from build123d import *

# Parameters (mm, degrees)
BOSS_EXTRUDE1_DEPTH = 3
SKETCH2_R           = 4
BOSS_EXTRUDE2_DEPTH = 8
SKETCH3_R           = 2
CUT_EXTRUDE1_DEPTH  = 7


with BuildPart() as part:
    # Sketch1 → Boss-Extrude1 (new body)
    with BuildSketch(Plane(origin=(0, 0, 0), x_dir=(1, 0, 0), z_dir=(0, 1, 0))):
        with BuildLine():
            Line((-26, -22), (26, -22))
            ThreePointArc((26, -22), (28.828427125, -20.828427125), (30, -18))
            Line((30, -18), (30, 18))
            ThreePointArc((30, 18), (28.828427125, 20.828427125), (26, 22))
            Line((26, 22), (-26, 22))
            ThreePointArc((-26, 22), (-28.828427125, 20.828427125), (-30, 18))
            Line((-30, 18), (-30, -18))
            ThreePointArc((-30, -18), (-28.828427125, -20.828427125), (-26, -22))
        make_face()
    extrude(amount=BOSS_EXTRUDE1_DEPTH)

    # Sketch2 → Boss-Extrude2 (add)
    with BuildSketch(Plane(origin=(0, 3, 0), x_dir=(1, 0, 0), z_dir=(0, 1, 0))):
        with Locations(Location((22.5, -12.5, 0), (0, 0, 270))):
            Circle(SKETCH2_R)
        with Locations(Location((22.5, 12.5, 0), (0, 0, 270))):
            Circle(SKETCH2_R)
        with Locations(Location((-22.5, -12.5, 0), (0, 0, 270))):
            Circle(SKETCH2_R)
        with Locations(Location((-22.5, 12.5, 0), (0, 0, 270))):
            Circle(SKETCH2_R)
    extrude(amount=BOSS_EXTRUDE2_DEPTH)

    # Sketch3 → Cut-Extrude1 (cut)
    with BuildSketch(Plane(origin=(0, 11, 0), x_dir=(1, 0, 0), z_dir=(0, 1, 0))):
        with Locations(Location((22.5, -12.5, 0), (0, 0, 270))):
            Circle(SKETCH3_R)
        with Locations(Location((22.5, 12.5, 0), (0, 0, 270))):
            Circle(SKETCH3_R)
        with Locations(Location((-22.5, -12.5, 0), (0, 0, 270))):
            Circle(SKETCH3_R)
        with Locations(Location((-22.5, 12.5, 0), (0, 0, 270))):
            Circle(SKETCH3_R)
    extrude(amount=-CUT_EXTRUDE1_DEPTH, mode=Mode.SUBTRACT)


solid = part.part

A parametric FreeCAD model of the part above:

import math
import FreeCAD as App
import Part
import Sketcher

V = App.Vector

doc = App.newDocument("Part")
body = doc.addObject("PartDesign::Body", "Body")

# Sketch on XZ plane
sketch1 = doc.addObject("Sketcher::SketchObject", "Sketch")
body.addObject(sketch1)
sketch1.AttachmentSupport = (doc.XZ_Plane, [""])
sketch1.MapMode = "FlatFace"
sketch1.addGeometry([
    Part.LineSegment(V(-26, 22, 0), V(26, 22, 0)),  # 0
    Part.ArcOfCircle(Part.Circle(V(26, 18, 0), V(0, 0, 1), 4), math.radians(0), math.radians(90)),  # 1
    Part.LineSegment(V(30, 18, 0), V(30, -18, 0)),  # 2
    Part.ArcOfCircle(Part.Circle(V(26, -18, 0), V(0, 0, 1), 4), math.radians(-90), math.radians(0)),  # 3
    Part.LineSegment(V(26, -22, 0), V(-26, -22, 0)),  # 4
    Part.ArcOfCircle(Part.Circle(V(-26, -18, 0), V(0, 0, 1), 4), math.radians(180), math.radians(270)),  # 5
    Part.LineSegment(V(-30, -18, 0), V(-30, 18, 0)),  # 6
    Part.ArcOfCircle(Part.Circle(V(-26, 18, 0), V(0, 0, 1), 4), math.radians(90), math.radians(180)),  # 7
], False)
sketch1.addConstraint([
    Sketcher.Constraint("Tangent", 0, 2, 1, 2),
    Sketcher.Constraint("Tangent", 1, 1, 2, 1),
    Sketcher.Constraint("Tangent", 2, 2, 3, 2),
    Sketcher.Constraint("Tangent", 3, 1, 4, 1),
    Sketcher.Constraint("Tangent", 4, 2, 5, 2),
    Sketcher.Constraint("Tangent", 5, 1, 6, 1),
    Sketcher.Constraint("Tangent", 6, 2, 7, 2),
    Sketcher.Constraint("Tangent", 7, 1, 0, 1),
    Sketcher.Constraint("Horizontal", 0),
    Sketcher.Constraint("Vertical", 2),
    Sketcher.Constraint("Horizontal", 4),
    Sketcher.Constraint("Vertical", 6),
    Sketcher.Constraint("Equal", 1, 3),
    Sketcher.Constraint("Equal", 3, 5),
    Sketcher.Constraint("Equal", 5, 7),
    Sketcher.Constraint("Symmetric", 1, 3, 5, 3, -1, 1),
    Sketcher.Constraint("Radius", 1, 4.0),
    Sketcher.Constraint("DistanceX", 0, 1, 0, 2, 52.0),
    Sketcher.Constraint("DistanceY", 2, 2, 2, 1, 36.0),
])
pad1 = doc.addObject("PartDesign::Pad", "Pad")
body.addObject(pad1)
pad1.Profile = sketch1
pad1.Length = 3
pad1.Reversed = True

# Sketch on XZ plane
sketch2 = doc.addObject("Sketcher::SketchObject", "Sketch001")
body.addObject(sketch2)
sketch2.AttachmentSupport = (doc.XZ_Plane, [""])
sketch2.MapMode = "FlatFace"
sketch2.AttachmentOffset = App.Placement(V(0, 0, -3), App.Rotation())
sketch2.addGeometry([
    Part.Circle(V(22.5, 12.5, 0), V(0, 0, 1), 4),
    Part.Circle(V(22.5, -12.5, 0), V(0, 0, 1), 4),
    Part.Circle(V(-22.5, 12.5, 0), V(0, 0, 1), 4),
    Part.Circle(V(-22.5, -12.5, 0), V(0, 0, 1), 4),
], False)
sketch2.addConstraint([
    Sketcher.Constraint("Equal", 0, 1),
    Sketcher.Constraint("Equal", 1, 2),
    Sketcher.Constraint("Equal", 2, 3),
    Sketcher.Constraint("Symmetric", 1, 3, 2, 3, -1, 1),
    Sketcher.Constraint("Symmetric", 0, 3, 3, 3, -1, 1),
    Sketcher.Constraint("Symmetric", 0, 3, 2, 3, -2),
    Sketcher.Constraint("Diameter", 0, 8.0),
    Sketcher.Constraint("DistanceY", 1, 3, 0, 3, 25.0),
    Sketcher.Constraint("DistanceX", 2, 3, 0, 3, 45.0),
])
pad2 = doc.addObject("PartDesign::Pad", "Pad001")
body.addObject(pad2)
pad2.Profile = sketch2
pad2.Length = 8
pad2.Reversed = True

# Sketch on XZ plane
sketch3 = doc.addObject("Sketcher::SketchObject", "Sketch002")
body.addObject(sketch3)
sketch3.AttachmentSupport = (doc.XZ_Plane, [""])
sketch3.MapMode = "FlatFace"
sketch3.AttachmentOffset = App.Placement(V(0, 0, -11), App.Rotation())
sketch3.addGeometry([
    Part.Circle(V(22.5, 12.5, 0), V(0, 0, 1), 2),
    Part.Circle(V(22.5, -12.5, 0), V(0, 0, 1), 2),
    Part.Circle(V(-22.5, 12.5, 0), V(0, 0, 1), 2),
    Part.Circle(V(-22.5, -12.5, 0), V(0, 0, 1), 2),
], False)
sketch3.addConstraint([
    Sketcher.Constraint("Equal", 0, 1),
    Sketcher.Constraint("Equal", 1, 2),
    Sketcher.Constraint("Equal", 2, 3),
    Sketcher.Constraint("Symmetric", 1, 3, 2, 3, -1, 1),
    Sketcher.Constraint("Symmetric", 0, 3, 3, 3, -1, 1),
    Sketcher.Constraint("Symmetric", 0, 3, 2, 3, -2),
    Sketcher.Constraint("Diameter", 0, 4.0),
    Sketcher.Constraint("DistanceY", 1, 3, 0, 3, 25.0),
    Sketcher.Constraint("DistanceX", 2, 3, 0, 3, 45.0),
])
pocket1 = doc.addObject("PartDesign::Pocket", "Pocket")
body.addObject(pocket1)
pocket1.Profile = sketch3
pocket1.Length = 7
pocket1.Reversed = True

doc.recompute()
